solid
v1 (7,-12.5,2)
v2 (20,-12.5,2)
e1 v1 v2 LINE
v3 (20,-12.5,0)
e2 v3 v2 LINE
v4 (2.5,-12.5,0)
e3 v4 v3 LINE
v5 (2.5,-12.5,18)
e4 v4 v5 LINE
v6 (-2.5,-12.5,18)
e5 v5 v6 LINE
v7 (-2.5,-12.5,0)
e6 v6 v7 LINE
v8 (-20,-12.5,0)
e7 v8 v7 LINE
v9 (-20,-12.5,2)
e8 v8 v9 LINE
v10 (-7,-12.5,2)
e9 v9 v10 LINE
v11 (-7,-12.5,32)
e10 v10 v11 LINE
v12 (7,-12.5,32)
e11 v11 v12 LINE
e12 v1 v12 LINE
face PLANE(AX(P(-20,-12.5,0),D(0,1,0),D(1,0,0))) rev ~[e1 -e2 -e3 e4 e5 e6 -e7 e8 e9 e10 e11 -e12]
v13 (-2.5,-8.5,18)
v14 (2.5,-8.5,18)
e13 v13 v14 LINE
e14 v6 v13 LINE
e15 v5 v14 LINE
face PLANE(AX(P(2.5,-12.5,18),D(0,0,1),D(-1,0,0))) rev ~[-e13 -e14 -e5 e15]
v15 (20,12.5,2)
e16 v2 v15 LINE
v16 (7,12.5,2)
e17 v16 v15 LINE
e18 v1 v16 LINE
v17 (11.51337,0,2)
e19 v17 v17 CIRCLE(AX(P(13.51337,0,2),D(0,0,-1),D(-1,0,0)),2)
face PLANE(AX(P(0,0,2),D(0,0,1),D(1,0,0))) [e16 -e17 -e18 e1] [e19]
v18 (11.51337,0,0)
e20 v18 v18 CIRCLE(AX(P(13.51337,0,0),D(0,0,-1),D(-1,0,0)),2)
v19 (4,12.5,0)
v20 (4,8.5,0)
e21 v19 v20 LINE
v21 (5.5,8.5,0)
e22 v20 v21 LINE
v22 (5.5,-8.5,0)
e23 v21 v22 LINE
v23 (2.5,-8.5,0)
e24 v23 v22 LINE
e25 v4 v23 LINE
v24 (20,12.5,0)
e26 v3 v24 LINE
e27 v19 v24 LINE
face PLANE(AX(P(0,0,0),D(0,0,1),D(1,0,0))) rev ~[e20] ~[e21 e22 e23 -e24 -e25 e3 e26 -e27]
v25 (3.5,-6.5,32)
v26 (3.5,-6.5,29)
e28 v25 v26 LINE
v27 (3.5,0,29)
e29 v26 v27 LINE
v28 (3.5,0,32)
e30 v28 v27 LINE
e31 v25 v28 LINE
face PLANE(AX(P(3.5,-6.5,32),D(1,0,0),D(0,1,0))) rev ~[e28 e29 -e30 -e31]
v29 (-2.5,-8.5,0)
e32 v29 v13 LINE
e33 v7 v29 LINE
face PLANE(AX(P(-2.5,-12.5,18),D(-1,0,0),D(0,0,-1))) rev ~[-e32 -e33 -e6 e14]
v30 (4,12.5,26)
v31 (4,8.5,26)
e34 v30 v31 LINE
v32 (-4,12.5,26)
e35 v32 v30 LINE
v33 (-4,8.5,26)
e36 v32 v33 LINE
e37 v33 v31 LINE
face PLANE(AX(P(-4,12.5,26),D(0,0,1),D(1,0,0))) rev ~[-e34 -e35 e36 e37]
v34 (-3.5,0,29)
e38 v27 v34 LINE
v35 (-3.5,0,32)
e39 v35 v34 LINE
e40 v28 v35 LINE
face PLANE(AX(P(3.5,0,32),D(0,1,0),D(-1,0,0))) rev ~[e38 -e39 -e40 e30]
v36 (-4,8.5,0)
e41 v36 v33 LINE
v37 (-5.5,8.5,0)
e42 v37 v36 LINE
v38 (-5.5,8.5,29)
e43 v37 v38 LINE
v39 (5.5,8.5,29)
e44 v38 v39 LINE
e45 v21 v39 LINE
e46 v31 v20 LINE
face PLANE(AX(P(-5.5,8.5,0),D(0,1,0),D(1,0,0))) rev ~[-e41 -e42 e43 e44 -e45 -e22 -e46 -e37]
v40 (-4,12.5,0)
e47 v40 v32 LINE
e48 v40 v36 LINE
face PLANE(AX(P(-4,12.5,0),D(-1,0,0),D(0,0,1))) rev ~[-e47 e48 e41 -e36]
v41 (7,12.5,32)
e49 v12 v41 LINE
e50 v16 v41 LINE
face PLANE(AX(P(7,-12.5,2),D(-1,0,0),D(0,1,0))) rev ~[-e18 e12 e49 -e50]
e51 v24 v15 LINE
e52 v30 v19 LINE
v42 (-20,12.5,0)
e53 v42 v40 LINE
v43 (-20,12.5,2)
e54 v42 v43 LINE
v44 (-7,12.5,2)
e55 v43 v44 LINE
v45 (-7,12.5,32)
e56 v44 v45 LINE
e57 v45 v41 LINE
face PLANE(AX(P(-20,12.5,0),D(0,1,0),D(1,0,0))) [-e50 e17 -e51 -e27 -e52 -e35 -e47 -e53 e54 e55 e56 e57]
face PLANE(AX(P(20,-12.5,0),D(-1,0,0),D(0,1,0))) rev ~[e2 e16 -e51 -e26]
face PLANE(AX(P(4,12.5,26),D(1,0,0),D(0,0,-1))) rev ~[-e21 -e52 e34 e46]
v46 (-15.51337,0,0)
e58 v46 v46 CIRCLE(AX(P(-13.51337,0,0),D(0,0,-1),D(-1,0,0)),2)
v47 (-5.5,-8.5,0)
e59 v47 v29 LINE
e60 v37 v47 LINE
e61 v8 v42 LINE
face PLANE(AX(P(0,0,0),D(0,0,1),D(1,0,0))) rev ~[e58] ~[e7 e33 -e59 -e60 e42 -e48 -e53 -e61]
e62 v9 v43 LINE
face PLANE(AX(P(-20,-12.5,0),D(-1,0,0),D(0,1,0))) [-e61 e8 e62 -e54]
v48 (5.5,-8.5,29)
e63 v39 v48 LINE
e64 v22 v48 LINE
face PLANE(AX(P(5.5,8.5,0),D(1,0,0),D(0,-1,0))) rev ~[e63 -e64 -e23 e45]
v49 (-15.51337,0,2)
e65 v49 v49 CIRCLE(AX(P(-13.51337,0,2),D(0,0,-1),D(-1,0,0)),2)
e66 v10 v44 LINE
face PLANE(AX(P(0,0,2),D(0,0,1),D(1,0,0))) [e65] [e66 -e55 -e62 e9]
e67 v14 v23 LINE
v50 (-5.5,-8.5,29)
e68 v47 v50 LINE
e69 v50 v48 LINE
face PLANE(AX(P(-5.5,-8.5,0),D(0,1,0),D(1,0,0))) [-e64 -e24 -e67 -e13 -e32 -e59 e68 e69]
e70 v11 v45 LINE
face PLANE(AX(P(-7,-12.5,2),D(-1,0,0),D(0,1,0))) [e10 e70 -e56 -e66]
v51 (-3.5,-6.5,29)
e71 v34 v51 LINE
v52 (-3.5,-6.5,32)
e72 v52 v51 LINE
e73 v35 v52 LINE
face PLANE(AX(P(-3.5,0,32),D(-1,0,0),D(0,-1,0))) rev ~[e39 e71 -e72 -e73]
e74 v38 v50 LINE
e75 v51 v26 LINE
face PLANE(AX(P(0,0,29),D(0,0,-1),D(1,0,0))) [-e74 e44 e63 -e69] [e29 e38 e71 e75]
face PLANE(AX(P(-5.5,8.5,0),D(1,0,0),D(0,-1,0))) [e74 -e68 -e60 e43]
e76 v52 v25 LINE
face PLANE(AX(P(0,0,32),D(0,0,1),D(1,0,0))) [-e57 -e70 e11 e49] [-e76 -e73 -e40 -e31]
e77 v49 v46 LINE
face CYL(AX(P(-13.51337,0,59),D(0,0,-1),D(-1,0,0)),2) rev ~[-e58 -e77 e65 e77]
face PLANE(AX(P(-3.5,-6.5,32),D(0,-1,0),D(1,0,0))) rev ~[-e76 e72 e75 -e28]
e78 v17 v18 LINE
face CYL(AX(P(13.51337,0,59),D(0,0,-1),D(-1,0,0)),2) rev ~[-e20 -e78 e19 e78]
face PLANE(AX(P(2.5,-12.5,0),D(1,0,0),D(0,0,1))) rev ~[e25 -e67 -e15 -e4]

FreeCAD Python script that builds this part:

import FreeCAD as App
import Part
import Sketcher
from FreeCAD import Vector
Q = App.Units.Quantity

doc = App.newDocument("Part")
body = doc.addObject("PartDesign::Body", "Body")

sketch1 = body.newObject("Sketcher::SketchObject", "Sketch")
sketch1.AttachmentSupport = (doc.getObject("XY_Plane"), [""])
sketch1.MapMode = "FlatFace"
sketch1.addGeometry(Part.LineSegment(Vector(-20, 12, 0), Vector(-20, -12, 0)), False)
sketch1.addGeometry(Part.LineSegment(Vector(-20, -12, 0), Vector(20, -12, 0)), False)
sketch1.addGeometry(Part.LineSegment(Vector(20, -12, 0), Vector(20, 12, 0)), False)
sketch1.addGeometry(Part.LineSegment(Vector(20, 12, 0), Vector(-20, 12, 0)), False)
sketch1.addConstraint(Sketcher.Constraint("Coincident", 0, 2, 1, 1))
sketch1.addConstraint(Sketcher.Constraint("Coincident", 1, 2, 2, 1))
sketch1.addConstraint(Sketcher.Constraint("Coincident", 2, 2, 3, 1))
sketch1.addConstraint(Sketcher.Constraint("Coincident", 3, 2, 0, 1))
sketch1.addConstraint(Sketcher.Constraint("Vertical", 0))
sketch1.addConstraint(Sketcher.Constraint("Horizontal", 1))
sketch1.addConstraint(Sketcher.Constraint("Vertical", 2))
sketch1.addConstraint(Sketcher.Constraint("Horizontal", 3))
sketch1.addConstraint(Sketcher.Constraint("Symmetric", 0, 2, 2, 2, -1, 1))
sketch1.addConstraint(Sketcher.Constraint("DistanceX", 1, 1, 1, 2, Q("40 mm")))
sketch1.addConstraint(Sketcher.Constraint("DistanceY", 0, 2, 0, 1, Q("25 mm")))
pad1 = body.newObject("PartDesign::Pad", "Pad")
pad1.Profile = sketch1
pad1.Length = 2

sketch2 = body.newObject("Sketcher::SketchObject", "Sketch001")
sketch2.AttachmentSupport = (doc.getObject("XY_Plane"), [""])
sketch2.MapMode = "FlatFace"
sketch2.AttachmentOffset = App.Placement(Vector(0, 0, 2), App.Rotation())
sketch2.addGeometry(Part.LineSegment(Vector(-7, 12, 0), Vector(-7, -12, 0)), False)
sketch2.addGeometry(Part.LineSegment(Vector(-7, -12, 0), Vector(7, -12, 0)), False)
sketch2.addGeometry(Part.LineSegment(Vector(7, -12, 0), Vector(7, 12, 0)), False)
sketch2.addGeometry(Part.LineSegment(Vector(7, 12, 0), Vector(-7, 12, 0)), False)
sketch2.addConstraint(Sketcher.Constraint("Coincident", 0, 2, 1, 1))
sketch2.addConstraint(Sketcher.Constraint("Coincident", 1, 2, 2, 1))
sketch2.addConstraint(Sketcher.Constraint("Coincident", 2, 2, 3, 1))
sketch2.addConstraint(Sketcher.Constraint("Coincident", 3, 2, 0, 1))
sketch2.addConstraint(Sketcher.Constraint("Vertical", 0))
sketch2.addConstraint(Sketcher.Constraint("Horizontal", 1))
sketch2.addConstraint(Sketcher.Constraint("Vertical", 2))
sketch2.addConstraint(Sketcher.Constraint("Horizontal", 3))
sketch2.addConstraint(Sketcher.Constraint("Symmetric", 0, 2, 2, 2, -1, 1))
sketch2.addConstraint(Sketcher.Constraint("DistanceX", 1, 1, 1, 2, Q("14 mm")))
sketch2.addConstraint(Sketcher.Constraint("DistanceY", 0, 2, 0, 1, Q("25 mm")))
pad2 = body.newObject("PartDesign::Pad", "Pad001")
pad2.Profile = sketch2
pad2.Length = 30

sketch3 = body.newObject("Sketcher::SketchObject", "Sketch002")
sketch3.AttachmentSupport = (doc.getObject("XY_Plane"), [""])
sketch3.MapMode = "FlatFace"
sketch3.AttachmentOffset = App.Placement(Vector(0, 0, 2), App.Rotation())
sketch3.addGeometry(Part.Circle(Vector(13.5, 0, 0), Vector(0, 0, 1), 2), False)
sketch3.addGeometry(Part.Circle(Vector(-13.5, 0, 0), Vector(0, 0, 1), 2), False)
sketch3.addConstraint(Sketcher.Constraint("Equal", 0, 1))
sketch3.addConstraint(Sketcher.Constraint("Symmetric", 0, 3, 1, 3, -1, 1))
sketch3.addConstraint(Sketcher.Constraint("PointOnObject", 0, 3, -1))
sketch3.addConstraint(Sketcher.Constraint("Diameter", 0, Q("4 mm")))
sketch3.addConstraint(Sketcher.Constraint("DistanceX", -1, 1, 0, 3, Q("13.51337 mm")))
doc.recompute()
hole = body.newObject("PartDesign::Hole", "Hole")
hole.Profile = sketch3
hole.ThreadType = "None"
hole.Diameter = 4
hole.DepthType = "ThroughAll"

sketch4 = body.newObject("Sketcher::SketchObject", "Sketch003")
sketch4.AttachmentSupport = (doc.getObject("XY_Plane"), [""])
sketch4.MapMode = "FlatFace"
sketch4.addGeometry(Part.LineSegment(Vector(-6, -8, 0), Vector(-6, 8, 0)), False)
sketch4.addGeometry(Part.LineSegment(Vector(-6, 8, 0), Vector(6, 8, 0)), False)
sketch4.addGeometry(Part.LineSegment(Vector(6, 8, 0), Vector(6, -8, 0)), False)
sketch4.addGeometry(Part.LineSegment(Vector(6, -8, 0), Vector(-6, -8, 0)), False)
sketch4.addConstraint(Sketcher.Constraint("Coincident", 0, 2, 1, 1))
sketch4.addConstraint(Sketcher.Constraint("Coincident", 1, 2, 2, 1))
sketch4.addConstraint(Sketcher.Constraint("Coincident", 2, 2, 3, 1))
sketch4.addConstraint(Sketcher.Constraint("Coincident", 3, 2, 0, 1))
sketch4.addConstraint(Sketcher.Constraint("Vertical", 0))
sketch4.addConstraint(Sketcher.Constraint("Horizontal", 1))
sketch4.addConstraint(Sketcher.Constraint("Vertical", 2))
sketch4.addConstraint(Sketcher.Constraint("Horizontal", 3))
sketch4.addConstraint(Sketcher.Constraint("Symmetric", 0, 2, 2, 2, -1, 1))
sketch4.addConstraint(Sketcher.Constraint("DistanceX", 1, 1, 1, 2, Q("11 mm")))
sketch4.addConstraint(Sketcher.Constraint("DistanceY", 0, 1, 0, 2, Q("17 mm")))
pocket1 = body.newObject("PartDesign::Pocket", "Pocket")
pocket1.Profile = sketch4
pocket1.Length = 29
pocket1.Reversed = True

sketch5 = body.newObject("Sketcher::SketchObject", "Sketch004")
sketch5.AttachmentSupport = (doc.getObject("XY_Plane"), [""])
sketch5.MapMode = "FlatFace"
sketch5.AttachmentOffset = App.Placement(Vector(0, 0, 32), App.Rotation())
sketch5.addGeometry(Part.LineSegment(Vector(-4, -6, 0), Vector(4, -6, 0)), False)
sketch5.addGeometry(Part.LineSegment(Vector(4, -6, 0), Vector(4, 0, 0)), False)
sketch5.addGeometry(Part.LineSegment(Vector(4, 0, 0), Vector(-4, 0, 0)), False)
sketch5.addGeometry(Part.LineSegment(Vector(-4, 0, 0), Vector(-4, -6, 0)), False)
sketch5.addConstraint(Sketcher.Constraint("Coincident", 0, 2, 1, 1))
sketch5.addConstraint(Sketcher.Constraint("Coincident", 1, 2, 2, 1))
sketch5.addConstraint(Sketcher.Constraint("Coincident", 2, 2, 3, 1))
sketch5.addConstraint(Sketcher.Constraint("Coincident", 3, 2, 0, 1))
sketch5.addConstraint(Sketcher.Constraint("Horizontal", 0))
sketch5.addConstraint(Sketcher.Constraint("Vertical", 1))
sketch5.addConstraint(Sketcher.Constraint("Horizontal", 2))
sketch5.addConstraint(Sketcher.Constraint("Vertical", 3))
sketch5.addConstraint(Sketcher.Constraint("Symmetric", 1, 2, 2, 2, -1, 1))
sketch5.addConstraint(Sketcher.Constraint("DistanceX", 0, 1, 0, 2, Q("7 mm")))
sketch5.addConstraint(Sketcher.Constraint("DistanceY", 1, 1, 1, 2, Q("6.5 mm")))
pocket2 = body.newObject("PartDesign::Pocket", "Pocket001")
pocket2.Profile = sketch5
pocket2.Length = 3

sketch6 = body.newObject("Sketcher::SketchObject", "Sketch005")
sketch6.AttachmentSupport = (doc.getObject("XZ_Plane"), [""])
sketch6.MapMode = "FlatFace"
sketch6.AttachmentOffset = App.Placement(Vector(0, 0, 12.5), App.Rotation())
sketch6.addGeometry(Part.LineSegment(Vector(-2, 0, 0), Vector(2, 0, 0)), False)
sketch6.addGeometry(Part.LineSegment(Vector(2, 0, 0), Vector(2, 18, 0)), False)
sketch6.addGeometry(Part.LineSegment(Vector(2, 18, 0), Vector(-2, 18, 0)), False)
sketch6.addGeometry(Part.LineSegment(Vector(-2, 18, 0), Vector(-2, 0, 0)), False)
sketch6.addConstraint(Sketcher.Constraint("Coincident", 0, 2, 1, 1))
sketch6.addConstraint(Sketcher.Constraint("Coincident", 1, 2, 2, 1))
sketch6.addConstraint(Sketcher.Constraint("Coincident", 2, 2, 3, 1))
sketch6.addConstraint(Sketcher.Constraint("Coincident", 3, 2, 0, 1))
sketch6.addConstraint(Sketcher.Constraint("Horizontal", 0))
sketch6.addConstraint(Sketcher.Constraint("Vertical", 1))
sketch6.addConstraint(Sketcher.Constraint("Horizontal", 2))
sketch6.addConstraint(Sketcher.Constraint("Vertical", 3))
sketch6.addConstraint(Sketcher.Constraint("Symmetric", 0, 2, 3, 2, -1, 1))
sketch6.addConstraint(Sketcher.Constraint("DistanceX", 0, 1, 0, 2, Q("5 mm")))
sketch6.addConstraint(Sketcher.Constraint("DistanceY", 1, 1, 1, 2, Q("18 mm")))
pocket3 = body.newObject("PartDesign::Pocket", "Pocket002")
pocket3.Profile = sketch6
pocket3.Length = 5

sketch7 = body.newObject("Sketcher::SketchObject", "Sketch006")
sketch7.AttachmentSupport = (doc.getObject("XZ_Plane"), [""])
sketch7.MapMode = "FlatFace"
sketch7.AttachmentOffset = App.Placement(Vector(0, 0, -12.5), App.Rotation())
sketch7.addGeometry(Part.LineSegment(Vector(4, 0, 0), Vector(-4, 0, 0)), False)
sketch7.addGeometry(Part.LineSegment(Vector(-4, 0, 0), Vector(-4, 26, 0)), False)
sketch7.addGeometry(Part.LineSegment(Vector(-4, 26, 0), Vector(4, 26, 0)), False)
sketch7.addGeometry(Part.LineSegment(Vector(4, 26, 0), Vector(4, 0, 0)), False)
sketch7.addConstraint(Sketcher.Constraint("Coincident", 0, 2, 1, 1))
sketch7.addConstraint(Sketcher.Constraint("Coincident", 1, 2, 2, 1))
sketch7.addConstraint(Sketcher.Constraint("Coincident", 2, 2, 3, 1))
sketch7.addConstraint(Sketcher.Constraint("Coincident", 3, 2, 0, 1))
sketch7.addConstraint(Sketcher.Constraint("Horizontal", 0))
sketch7.addConstraint(Sketcher.Constraint("Vertical", 1))
sketch7.addConstraint(Sketcher.Constraint("Horizontal", 2))
sketch7.addConstraint(Sketcher.Constraint("Vertical", 3))
sketch7.addConstraint(Sketcher.Constraint("Symmetric", 0, 2, 3, 2, -1, 1))
sketch7.addConstraint(Sketcher.Constraint("DistanceX", 0, 2, 0, 1, Q("8 mm")))
sketch7.addConstraint(Sketcher.Constraint("DistanceY", 1, 1, 1, 2, Q("26 mm")))
pocket4 = body.newObject("PartDesign::Pocket", "Pocket003")
pocket4.Profile = sketch7
pocket4.Length = 5
pocket4.Reversed = True

doc.recompute()
